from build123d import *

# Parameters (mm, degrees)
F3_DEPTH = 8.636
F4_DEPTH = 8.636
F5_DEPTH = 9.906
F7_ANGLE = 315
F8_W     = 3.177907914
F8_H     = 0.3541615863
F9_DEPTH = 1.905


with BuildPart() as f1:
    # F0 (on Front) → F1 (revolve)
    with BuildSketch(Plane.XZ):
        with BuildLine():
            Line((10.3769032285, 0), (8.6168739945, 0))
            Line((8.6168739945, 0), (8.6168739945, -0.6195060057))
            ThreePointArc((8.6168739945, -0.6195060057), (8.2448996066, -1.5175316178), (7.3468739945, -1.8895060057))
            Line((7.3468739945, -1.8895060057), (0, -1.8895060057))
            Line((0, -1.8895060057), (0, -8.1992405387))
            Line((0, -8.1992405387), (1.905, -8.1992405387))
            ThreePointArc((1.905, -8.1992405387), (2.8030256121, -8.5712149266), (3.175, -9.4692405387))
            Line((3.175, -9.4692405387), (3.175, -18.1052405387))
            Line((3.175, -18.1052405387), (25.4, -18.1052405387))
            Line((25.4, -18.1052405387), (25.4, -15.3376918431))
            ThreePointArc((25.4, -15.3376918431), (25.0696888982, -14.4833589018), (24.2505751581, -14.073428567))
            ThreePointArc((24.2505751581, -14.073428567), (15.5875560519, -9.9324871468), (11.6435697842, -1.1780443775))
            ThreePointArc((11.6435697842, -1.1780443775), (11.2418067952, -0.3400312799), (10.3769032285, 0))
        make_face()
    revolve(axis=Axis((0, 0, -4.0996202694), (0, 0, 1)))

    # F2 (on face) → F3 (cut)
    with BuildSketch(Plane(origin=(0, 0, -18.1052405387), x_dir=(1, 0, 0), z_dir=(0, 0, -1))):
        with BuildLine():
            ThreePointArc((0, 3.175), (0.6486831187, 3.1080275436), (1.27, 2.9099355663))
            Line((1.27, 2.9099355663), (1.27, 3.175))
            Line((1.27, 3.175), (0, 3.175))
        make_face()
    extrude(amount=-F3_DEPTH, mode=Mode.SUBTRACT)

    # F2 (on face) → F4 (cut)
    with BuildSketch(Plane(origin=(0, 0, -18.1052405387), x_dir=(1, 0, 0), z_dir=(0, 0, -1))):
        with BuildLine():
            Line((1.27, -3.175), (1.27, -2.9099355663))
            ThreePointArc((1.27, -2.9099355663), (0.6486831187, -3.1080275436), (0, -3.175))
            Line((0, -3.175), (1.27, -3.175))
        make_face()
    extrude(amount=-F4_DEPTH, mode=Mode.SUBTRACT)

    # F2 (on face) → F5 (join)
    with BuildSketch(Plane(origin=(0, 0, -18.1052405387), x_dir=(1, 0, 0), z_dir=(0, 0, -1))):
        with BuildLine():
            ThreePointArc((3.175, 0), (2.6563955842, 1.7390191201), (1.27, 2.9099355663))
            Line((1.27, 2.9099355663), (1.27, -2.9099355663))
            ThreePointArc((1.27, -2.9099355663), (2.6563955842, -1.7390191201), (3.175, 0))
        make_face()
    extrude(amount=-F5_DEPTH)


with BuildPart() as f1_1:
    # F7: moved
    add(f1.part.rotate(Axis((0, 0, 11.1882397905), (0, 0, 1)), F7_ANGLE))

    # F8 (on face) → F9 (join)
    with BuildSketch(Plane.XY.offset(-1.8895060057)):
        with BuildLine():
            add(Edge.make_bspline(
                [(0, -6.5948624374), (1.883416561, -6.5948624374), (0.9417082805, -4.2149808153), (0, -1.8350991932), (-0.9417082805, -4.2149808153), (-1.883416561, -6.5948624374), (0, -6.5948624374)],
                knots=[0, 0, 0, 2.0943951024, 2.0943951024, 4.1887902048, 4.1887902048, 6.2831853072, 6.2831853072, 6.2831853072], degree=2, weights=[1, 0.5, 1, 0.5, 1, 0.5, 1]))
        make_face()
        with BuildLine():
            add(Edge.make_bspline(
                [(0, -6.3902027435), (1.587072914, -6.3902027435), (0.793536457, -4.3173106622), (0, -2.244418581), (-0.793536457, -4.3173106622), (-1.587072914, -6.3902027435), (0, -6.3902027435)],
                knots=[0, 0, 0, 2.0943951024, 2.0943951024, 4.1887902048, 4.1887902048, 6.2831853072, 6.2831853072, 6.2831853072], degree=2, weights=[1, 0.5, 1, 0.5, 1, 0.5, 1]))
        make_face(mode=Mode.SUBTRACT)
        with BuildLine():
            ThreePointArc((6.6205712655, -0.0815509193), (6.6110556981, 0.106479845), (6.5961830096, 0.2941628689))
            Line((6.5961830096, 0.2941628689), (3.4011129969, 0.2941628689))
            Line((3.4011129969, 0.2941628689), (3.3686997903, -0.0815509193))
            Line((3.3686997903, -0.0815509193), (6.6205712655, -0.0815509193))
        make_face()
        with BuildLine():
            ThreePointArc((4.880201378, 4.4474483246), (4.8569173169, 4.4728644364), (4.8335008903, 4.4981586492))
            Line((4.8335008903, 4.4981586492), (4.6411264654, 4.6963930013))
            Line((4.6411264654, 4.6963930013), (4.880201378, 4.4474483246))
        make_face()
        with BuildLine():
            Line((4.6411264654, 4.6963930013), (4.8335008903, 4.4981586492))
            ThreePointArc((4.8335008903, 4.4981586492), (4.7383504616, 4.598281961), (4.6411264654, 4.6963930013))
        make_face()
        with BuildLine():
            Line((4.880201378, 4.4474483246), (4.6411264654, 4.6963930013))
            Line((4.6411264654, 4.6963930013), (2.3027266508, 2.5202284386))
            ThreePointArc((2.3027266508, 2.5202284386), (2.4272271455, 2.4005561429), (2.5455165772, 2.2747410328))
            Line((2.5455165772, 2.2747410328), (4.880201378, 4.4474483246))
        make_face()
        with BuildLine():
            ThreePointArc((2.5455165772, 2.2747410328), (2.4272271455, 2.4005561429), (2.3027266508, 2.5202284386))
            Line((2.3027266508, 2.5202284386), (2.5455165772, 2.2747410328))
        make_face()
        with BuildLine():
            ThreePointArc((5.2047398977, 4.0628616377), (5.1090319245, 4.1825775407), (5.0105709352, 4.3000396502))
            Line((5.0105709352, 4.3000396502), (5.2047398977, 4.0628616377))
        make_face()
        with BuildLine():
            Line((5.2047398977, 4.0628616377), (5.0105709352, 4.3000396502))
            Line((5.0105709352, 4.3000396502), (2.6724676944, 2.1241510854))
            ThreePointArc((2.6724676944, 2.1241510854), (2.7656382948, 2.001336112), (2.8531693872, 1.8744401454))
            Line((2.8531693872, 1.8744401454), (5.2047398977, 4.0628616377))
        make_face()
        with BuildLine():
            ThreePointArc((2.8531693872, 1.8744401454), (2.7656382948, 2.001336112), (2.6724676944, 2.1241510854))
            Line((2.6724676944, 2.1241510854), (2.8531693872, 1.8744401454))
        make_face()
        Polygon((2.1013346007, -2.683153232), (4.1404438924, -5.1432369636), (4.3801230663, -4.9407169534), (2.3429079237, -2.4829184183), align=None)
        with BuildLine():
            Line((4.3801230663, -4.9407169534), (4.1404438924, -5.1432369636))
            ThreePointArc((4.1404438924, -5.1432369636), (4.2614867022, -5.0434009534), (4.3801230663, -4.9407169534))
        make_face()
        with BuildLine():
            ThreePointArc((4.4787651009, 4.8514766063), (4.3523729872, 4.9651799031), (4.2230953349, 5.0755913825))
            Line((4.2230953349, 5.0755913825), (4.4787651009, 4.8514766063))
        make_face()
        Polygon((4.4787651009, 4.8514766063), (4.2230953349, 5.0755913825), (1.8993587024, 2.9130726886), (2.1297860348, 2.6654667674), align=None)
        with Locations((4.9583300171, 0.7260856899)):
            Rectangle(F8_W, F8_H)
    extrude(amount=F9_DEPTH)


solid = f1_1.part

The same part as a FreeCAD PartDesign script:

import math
import FreeCAD as App
import Part
import Sketcher

V = App.Vector
Q = App.Units.Quantity

doc = App.newDocument("Part")
params = doc.addObject("Spreadsheet::Sheet", "Params")
for row, (alias, value) in enumerate([
    ("sketch1_radius", "0.05 in"),
    ("sketch1_radius2", "0.55 in"),
    ("sketch1_height", "0.34 in"),
    ("sketch1_width", "0.075 in"),
    ("revolution_angle", "360 deg"),
    ("sketch2_radius", "0.125 in"),
    ("sketch2_width", "0.05 in"),
    ("pocket1_length", "0.34 in"),
    ("sketch3_radius", "0.125 in"),
    ("sketch3_width", "0.05 in"),
    ("pocket2_length", "0.34 in"),
    ("sketch4_radius", "0.125 in"),
    ("pad1_length", "0.39 in"),
    ("pad2_length", "0.075 in"),
], start=1):
    params.set(f"A{row}", alias)
    params.set(f"B{row}", "=" + value)
    params.setAlias(f"B{row}", alias)

body = doc.addObject("PartDesign::Body", "Body")

# Sketch on XZ plane
sketch1 = doc.addObject("Sketcher::SketchObject", "Sketch")
body.addObject(sketch1)
sketch1.AttachmentSupport = (doc.XZ_Plane, [""])
sketch1.MapMode = "FlatFace"
sketch1.addGeometry([
    Part.LineSegment(V(10.4, 0, 0), V(8.6, 0, 0)),  # 0
    Part.LineSegment(V(8.6, 0, 0), V(8.6, -0.6, 0)),  # 1
    Part.ArcOfCircle(Part.Circle(V(7.3, -0.6, 0), V(0, 0, 1), 1.3), math.radians(-90), math.radians(0)),  # 2
    Part.LineSegment(V(7.3, -1.9, 0), V(0, -1.9, 0)),  # 3
    Part.LineSegment(V(0, -1.9, 0), V(0, -8.2, 0)),  # 4
    Part.LineSegment(V(0, -8.2, 0), V(1.9, -8.2, 0)),  # 5
    Part.ArcOfCircle(Part.Circle(V(1.9, -9.5, 0), V(0, 0, 1), 1.3), math.radians(0), math.radians(90)),  # 6
    Part.LineSegment(V(3.2, -9.5, 0), V(3.2, -18.1, 0)),  # 7
    Part.LineSegment(V(3.2, -18.1, 0), V(25.4, -18.1, 0)),  # 8
    Part.LineSegment(V(25.4, -18.1, 0), V(25.4, -15.3, 0)),  # 9
    Part.ArcOfCircle(Part.Circle(V(24.1, -15.3, 0), V(0, 0, 1), 1.3), math.radians(0), math.radians(85)),  # 10
    Part.ArcOfCircle(Part.Circle(V(25.6, -0.2, 0), V(0, 0, 1), 14), math.radians(-176), math.radians(-95)),  # 11
    Part.ArcOfCircle(Part.Circle(V(10.4, -1.3, 0), V(0, 0, 1), 1.3), math.radians(4), math.radians(90)),  # 12
], False)
sketch1.addConstraint([
    Sketcher.Constraint("Coincident", 0, 2, 1, 1),
    Sketcher.Constraint("Tangent", 1, 2, 2, 2),
    Sketcher.Constraint("Tangent", 2, 1, 3, 1),
    Sketcher.Constraint("Coincident", 3, 2, 4, 1),
    Sketcher.Constraint("Coincident", 4, 2, 5, 1),
    Sketcher.Constraint("Tangent", 5, 2, 6, 2),
    Sketcher.Constraint("Tangent", 6, 1, 7, 1),
    Sketcher.Constraint("Coincident", 7, 2, 8, 1),
    Sketcher.Constraint("Coincident", 8, 2, 9, 1),
    Sketcher.Constraint("Tangent", 9, 2, 10, 1),
    Sketcher.Constraint("Tangent", 10, 2, 11, 2),
    Sketcher.Constraint("Tangent", 11, 1, 12, 1),
    Sketcher.Constraint("Tangent", 12, 2, 0, 1),
    Sketcher.Constraint("Horizontal", 0),
    Sketcher.Constraint("Vertical", 1),
    Sketcher.Constraint("Horizontal", 3),
    Sketcher.Constraint("Vertical", 4),
    Sketcher.Constraint("Horizontal", 5),
    Sketcher.Constraint("Vertical", 7),
    Sketcher.Constraint("Horizontal", 8),
    Sketcher.Constraint("Vertical", 9),
    Sketcher.Constraint("Equal", 2, 6),
    Sketcher.Constraint("Equal", 6, 10),
    Sketcher.Constraint("Equal", 10, 12),
    Sketcher.Constraint("PointOnObject", 0, 2, -1),
    Sketcher.Constraint("PointOnObject", 3, 2, -2),
    Sketcher.Constraint("Radius", 2, Q("0.05 in")),
    Sketcher.Constraint("Radius", 11, Q("0.55 in")),
    Sketcher.Constraint("DistanceX", -1, 1, 8, 2, Q("1 in")),
    Sketcher.Constraint("DistanceY", 7, 2, 7, 1, Q("0.34 in")),
    Sketcher.Constraint("DistanceX", 5, 1, 5, 2, Q("0.075 in")),
    Sketcher.Constraint("DistanceX", 0, 2, 0, 1, 1.760029),
    Sketcher.Constraint("DistanceY", 9, 1, 9, 2, 2.767549),
    Sketcher.Constraint("DistanceX", -1, 1, 11, 3, 25.576902),
    Sketcher.Constraint("DistanceX", 12, 3, 11, 3, 15.199999),
    Sketcher.Constraint("DistanceY", 1, 2, 1, 1, 0.619506),
])
sketch1.setExpression("Constraints[26]", "Params.sketch1_radius")
sketch1.setExpression("Constraints[27]", "Params.sketch1_radius2")
sketch1.setExpression("Constraints[29]", "Params.sketch1_height")
sketch1.setExpression("Constraints[30]", "Params.sketch1_width")
revolution = doc.addObject("PartDesign::Revolution", "Revolution")
body.addObject(revolution)
revolution.Profile = sketch1
revolution.ReferenceAxis = (sketch1, ["V_Axis"])
revolution.setExpression("Angle", "Params.revolution_angle")

# Sketch on XY plane
sketch2 = doc.addObject("Sketcher::SketchObject", "Sketch001")
body.addObject(sketch2)
sketch2.AttachmentSupport = (doc.XY_Plane, [""])
sketch2.MapMode = "FlatFace"
sketch2.AttachmentOffset = App.Placement(V(0, 0, -18.105241), App.Rotation())
sketch2.addGeometry([
    Part.ArcOfCircle(Part.Circle(V(0, 0, 0), V(0, 0, 1), 3.17), math.radians(-90), math.radians(-66)),
    Part.LineSegment(V(1.27, -2.91, 0), V(1.27, -3.17, 0)),
    Part.LineSegment(V(1.27, -3.17, 0), V(0, -3.17, 0)),
], False)
sketch2.addConstraint([
    Sketcher.Constraint("Coincident", 0, 2, 1, 1),
    Sketcher.Constraint("Coincident", 1, 2, 2, 1),
    Sketcher.Constraint("Tangent", 2, 2, 0, 1),
    Sketcher.Constraint("Vertical", 1),
    Sketcher.Constraint("Horizontal", 2),
    Sketcher.Constraint("Coincident", 0, 3, -1, 1),
    Sketcher.Constraint("Radius", 0, Q("0.125 in")),
    Sketcher.Constraint("DistanceX", 2, 2, 2, 1, Q("0.05 in")),
])
sketch2.setExpression("Constraints[6]", "Params.sketch2_radius")
sketch2.setExpression("Constraints[7]", "Params.sketch2_width")
pocket1 = doc.addObject("PartDesign::Pocket", "Pocket")
body.addObject(pocket1)
pocket1.Profile = sketch2
pocket1.setExpression("Length", "Params.pocket1_length")
pocket1.Reversed = True

# Sketch on XY plane
sketch3 = doc.addObject("Sketcher::SketchObject", "Sketch002")
body.addObject(sketch3)
sketch3.AttachmentSupport = (doc.XY_Plane, [""])
sketch3.MapMode = "FlatFace"
sketch3.AttachmentOffset = App.Placement(V(0, 0, -18.105241), App.Rotation())
sketch3.addGeometry([
    Part.LineSegment(V(1.27, 3.17, 0), V(1.27, 2.91, 0)),
    Part.ArcOfCircle(Part.Circle(V(0, 0, 0), V(0, 0, 1), 3.17), math.radians(66), math.radians(90)),
    Part.LineSegment(V(0, 3.17, 0), V(1.27, 3.17, 0)),
], False)
sketch3.addConstraint([
    Sketcher.Constraint("Coincident", 0, 2, 1, 1),
    Sketcher.Constraint("Tangent", 1, 2, 2, 1),
    Sketcher.Constraint("Coincident", 2, 2, 0, 1),
    Sketcher.Constraint("Vertical", 0),
    Sketcher.Constraint("Horizontal", 2),
    Sketcher.Constraint("Coincident", 1, 3, -1, 1),
    Sketcher.Constraint("Radius", 1, Q("0.125 in")),
    Sketcher.Constraint("DistanceX", 2, 1, 2, 2, Q("0.05 in")),
])
sketch3.setExpression("Constraints[6]", "Params.sketch3_radius")
sketch3.setExpression("Constraints[7]", "Params.sketch3_width")
pocket2 = doc.addObject("PartDesign::Pocket", "Pocket001")
body.addObject(pocket2)
pocket2.Profile = sketch3
pocket2.setExpression("Length", "Params.pocket2_length")
pocket2.Reversed = True

# Sketch on XY plane
sketch4 = doc.addObject("Sketcher::SketchObject", "Sketch003")
body.addObject(sketch4)
sketch4.AttachmentSupport = (doc.XY_Plane, [""])
sketch4.MapMode = "FlatFace"
sketch4.AttachmentOffset = App.Placement(V(0, 0, -18.105241), App.Rotation())
sketch4.addGeometry([
    Part.ArcOfCircle(Part.Circle(V(0, 0, 0), V(0, 0, 1), 3.2), math.radians(-66), math.radians(0)),
    Part.LineSegment(V(1.3, -2.9, 0), V(1.3, 2.9, 0)),
    Part.ArcOfCircle(Part.Circle(V(0, 0, 0), V(0, 0, 1), 3.2), math.radians(0), math.radians(66)),
], False)
sketch4.addConstraint([
    Sketcher.Constraint("Coincident", 0, 1, 1, 1),
    Sketcher.Constraint("Coincident", 1, 2, 2, 2),
    Sketcher.Constraint("Tangent", 2, 1, 0, 2),
    Sketcher.Constraint("Vertical", 1),
    Sketcher.Constraint("Coincident", 0, 3, -1, 1),
    Sketcher.Constraint("Equal", 0, 2),
    Sketcher.Constraint("PointOnObject", 2, 1, -1),
    Sketcher.Constraint("Radius", 0, Q("0.125 in")),
    Sketcher.Constraint("DistanceX", -1, 1, 0, 1, Q("0.05 in")),
])
sketch4.setExpression("Constraints[7]", "Params.sketch4_radius")
pad1 = doc.addObject("PartDesign::Pad", "Pad")
body.addObject(pad1)
pad1.Profile = sketch4
pad1.setExpression("Length", "Params.pad1_length")
body2 = doc.addObject("PartDesign::Body", "Body001")
doc.recompute()

body.Placement = App.Placement(V(0, 0, 0), App.Rotation(V(0, 0, 1), 315))
boolean = doc.addObject("PartDesign::Boolean", "Boolean")
body2.addObject(boolean)
boolean.Type = "Fuse"
boolean.addObjects([body])

# Sketch on XY plane
sketch5 = doc.addObject("Sketcher::SketchObject", "Sketch004")
body2.addObject(sketch5)
sketch5.AttachmentSupport = (doc.getObject("XY_Plane001"), [""])
sketch5.MapMode = "FlatFace"
sketch5.AttachmentOffset = App.Placement(V(0, 0, -1.889506), App.Rotation())
sketch5.addGeometry([
    Part.BSplineCurve([V(0, -6.594862, 0), V(1.883417, -6.594862, 0), V(0.941708, -4.214981, 0), V(0, -1.835099, 0), V(-0.941708, -4.214981, 0), V(-1.883417, -6.594862, 0), V(0, -6.594862, 0)], [3, 2, 2, 3], [0, 2.094395102, 4.188790205, 6.283185307], False, 2, [1, 0.5, 1, 0.5, 1, 0.5, 1], False),  # 0
    Part.BSplineCurve([V(0, -6.390203, 0), V(1.587073, -6.390203, 0), V(0.793536, -4.317311, 0), V(0, -2.244419, 0), V(-0.793536, -4.317311, 0), V(-1.587073, -6.390203, 0), V(0, -6.390203, 0)], [3, 2, 2, 3], [0, 2.094395102, 4.188790205, 6.283185307], False, 2, [1, 0.5, 1, 0.5, 1, 0.5, 1], False),  # 1
    Part.ArcOfCircle(Part.Circle(V(0.022183, -0.321216, 0), V(0, 0, 1), 6.602739), math.radians(2.080166), math.radians(5.347756)),  # 2
    Part.LineSegment(V(6.596183, 0.294163, 0), V(3.401113, 0.294163, 0)),  # 3
    Part.LineSegment(V(3.401113, 0.294163, 0), V(3.3687, -0.081551, 0)),  # 4
    Part.LineSegment(V(3.3687, -0.081551, 0), V(6.620571, -0.081551, 0)),  # 5
    Part.ArcOfCircle(Part.Circle(V(-0.000001, -0.000001, 0), V(0, 0, 1), 6.60274), math.radians(42.343687), math.radians(42.941906)),  # 6
    Part.ArcOfCircle(Part.Circle(V(0, 0, 0), V(0, 0, 1), 6.602739), math.radians(42.941906), math.radians(45.339116)),  # 7
    Part.LineSegment(V(4.641126, 4.696393, 0), V(2.302727, 2.520228, 0)),  # 8
    Part.LineSegment(V(2.302727, 2.520228, 0), V(2.545517, 2.274741, 0)),  # 9
    Part.LineSegment(V(2.545517, 2.274741, 0), V(4.880201, 4.447448, 0)),  # 10
    Part.ArcOfCircle(Part.Circle(V(0, 0, 0), V(0, 0, 1), 6.602739), math.radians(37.975883), math.radians(40.63598)),  # 11
    Part.LineSegment(V(5.010571, 4.30004, 0), V(2.672468, 2.124151, 0)),  # 12
    Part.LineSegment(V(2.672468, 2.124151, 0), V(2.853169, 1.87444, 0)),  # 13
    Part.LineSegment(V(2.853169, 1.87444, 0), V(5.20474, 4.062862, 0)),  # 14
    Part.LineSegment(V(2.101335, -2.683153, 0), V(4.140444, -5.143237, 0)),  # 15
    Part.ArcOfCircle(Part.Circle(V(0, 0, 0), V(0, 0, 1), 6.602739), math.radians(-51.165001), math.radians(-48.441859)),  # 16
    Part.LineSegment(V(4.380123, -4.940717, 0), V(2.342908, -2.482918, 0)),  # 17
    Part.LineSegment(V(2.342908, -2.482918, 0), V(2.101335, -2.683153, 0)),  # 18
    Part.ArcOfCircle(Part.Circle(V(0, 0, 0), V(0, 0, 1), 6.602739), math.radians(47.287556), math.radians(50.238188)),  # 19
    Part.LineSegment(V(4.223095, 5.075591, 0), V(1.899359, 2.913073, 0)),  # 20
    Part.LineSegment(V(1.899359, 2.913073, 0), V(2.129786, 2.665467, 0)),  # 21
    Part.LineSegment(V(2.129786, 2.665467, 0), V(4.478765, 4.851477, 0)),  # 22
    Part.LineSegment(V(3.369376, 0.903166, 0), V(3.369376, 0.549005, 0)),  # 23
    Part.LineSegment(V(3.369376, 0.549005, 0), V(6.547284, 0.549005, 0)),  # 24
    Part.LineSegment(V(6.547284, 0.549005, 0), V(6.547284, 0.903166, 0)),  # 25
    Part.LineSegment(V(6.547284, 0.903166, 0), V(3.369376, 0.903166, 0)),  # 26
], False)
sketch5.addConstraint([
    Sketcher.Constraint("Block", 0),
    Sketcher.Constraint("Block", 1),
    Sketcher.Constraint("Coincident", 2, 2, 3, 1),
    Sketcher.Constraint("Coincident", 3, 2, 4, 1),
    Sketcher.Constraint("Coincident", 4, 2, 5, 1),
    Sketcher.Constraint("Coincident", 5, 2, 2, 1),
    Sketcher.Constraint("Tangent", 6, 2, 7, 1),
    Sketcher.Constraint("Coincident", 7, 2, 8, 1),
    Sketcher.Constraint("Coincident", 8, 2, 9, 1),
    Sketcher.Constraint("Coincident", 9, 2, 10, 1),
    Sketcher.Constraint("Coincident", 10, 2, 6, 1),
    Sketcher.Constraint("Coincident", 11, 2, 12, 1),
    Sketcher.Constraint("Coincident", 12, 2, 13, 1),
    Sketcher.Constraint("Coincident", 13, 2, 14, 1),
    Sketcher.Constraint("Coincident", 14, 2, 11, 1),
    Sketcher.Constraint("Coincident", 15, 2, 16, 1),
    Sketcher.Constraint("Coincident", 16, 2, 17, 1),
    Sketcher.Constraint("Coincident", 17, 2, 18, 1),
    Sketcher.Constraint("Coincident", 18, 2, 15, 1),
    Sketcher.Constraint("Coincident", 19, 2, 20, 1),
    Sketcher.Constraint("Coincident", 20, 2, 21, 1),
    Sketcher.Constraint("Coincident", 21, 2, 22, 1),
    Sketcher.Constraint("Coincident", 22, 2, 19, 1),
    Sketcher.Constraint("Coincident", 23, 2, 24, 1),
    Sketcher.Constraint("Coincident", 24, 2, 25, 1),
    Sketcher.Constraint("Coincident", 25, 2, 26, 1),
    Sketcher.Constraint("Coincident", 26, 2, 23, 1),
    Sketcher.Constraint("Horizontal", 3),
    Sketcher.Constraint("Horizontal", 5),
    Sketcher.Constraint("Vertical", 23),
    Sketcher.Constraint("Horizontal", 24),
    Sketcher.Constraint("Vertical", 25),
    Sketcher.Constraint("Horizontal", 26),
    Sketcher.Constraint("Coincident", 6, 3, -1, 1),
    Sketcher.Constraint("Coincident", 11, 3, -1, 1),
    Sketcher.Constraint("Coincident", 16, 3, -1, 1),
    Sketcher.Constraint("Coincident", 19, 3, -1, 1),
    Sketcher.Constraint("Equal", 2, 6),
    Sketcher.Constraint("Equal", 6, 7),
    Sketcher.Constraint("Equal", 7, 11),
    Sketcher.Constraint("Equal", 11, 16),
    Sketcher.Constraint("Equal", 16, 19),
    Sketcher.Constraint("Parallel", 8, 10),
    Sketcher.Constraint("Parallel", 10, 12),
    Sketcher.Constraint("Parallel", 12, 14),
    Sketcher.Constraint("Parallel", 15, 17),
    Sketcher.Constraint("Perpendicular", 17, 18),
    Sketcher.Constraint("Parallel", 14, 20),
    Sketcher.Constraint("Perpendicular", 20, 21),
    Sketcher.Constraint("Perpendicular", 21, 22),
    Sketcher.Constraint("Radius", 2, 6.602739),
    Sketcher.Constraint("DistanceY", 11, 2, 6, 2, Q("0.0078 in")),
    Sketcher.Constraint("DistanceX", 3, 2, 3, 1, 3.19507),
    Sketcher.Constraint("DistanceX", 5, 1, 5, 2, 3.251871),
    Sketcher.Constraint("DistanceY", 23, 2, 23, 1, 0.354162),
    Sketcher.Constraint("DistanceX", -1, 1, 4, 2, 3.3687),
    Sketcher.Constraint("DistanceX", -1, 1, 6, 2, 4.833501),
    Sketcher.Constraint("DistanceX", -1, 1, 10, 2, 4.880201),
    Sketcher.Constraint("DistanceX", 2, 3, 2, 2, 6.574),
    Sketcher.Constraint("DistanceX", 8, 2, 7, 2, 2.3384),
    Sketcher.Constraint("DistanceY", 9, 2, 11, 2, 2.025299),
    Sketcher.Constraint("DistanceX", 12, 2, 13, 2, 0.180702),
    Sketcher.Constraint("DistanceY", 13, 2, 9, 2, 0.400301),
    Sketcher.Constraint("DistanceY", 15, 2, 3, 2, 5.4374),
    Sketcher.Constraint("DistanceY", 16, 2, 17, 2, 2.457799),
    Sketcher.Constraint("DistanceY", 7, 2, 19, 2, 0.379198),
    Sketcher.Constraint("DistanceX", 24, 2, 2, 2, 0.048899),
    Sketcher.Constraint("Distance", 4, 0.377109),
    Sketcher.Constraint("Distance", 8, 3.19434),
    Sketcher.Constraint("Distance", 9, 0.345269),
    Sketcher.Constraint("Distance", 14, 3.212331),
    Sketcher.Constraint("Distance", 18, 0.31377),
    Sketcher.Constraint("Distance", 20, 3.174309),
    Sketcher.Constraint("Distance", 21, 0.338239),
    Sketcher.Constraint("DistanceX", 24, 1, 24, 2, 3.177908),
    Sketcher.Constraint("DistanceY", 4, 2, -1, 1, 0.081551),
    Sketcher.Constraint("DistanceX", 17, 2, 4, 2, 1.025792),
    Sketcher.Constraint("DistanceY", -1, 1, 23, 2, 0.549005),
])
pad2 = doc.addObject("PartDesign::Pad", "Pad001")
body2.addObject(pad2)
pad2.Profile = sketch5
pad2.setExpression("Length", "Params.pad2_length")

doc.recompute()
